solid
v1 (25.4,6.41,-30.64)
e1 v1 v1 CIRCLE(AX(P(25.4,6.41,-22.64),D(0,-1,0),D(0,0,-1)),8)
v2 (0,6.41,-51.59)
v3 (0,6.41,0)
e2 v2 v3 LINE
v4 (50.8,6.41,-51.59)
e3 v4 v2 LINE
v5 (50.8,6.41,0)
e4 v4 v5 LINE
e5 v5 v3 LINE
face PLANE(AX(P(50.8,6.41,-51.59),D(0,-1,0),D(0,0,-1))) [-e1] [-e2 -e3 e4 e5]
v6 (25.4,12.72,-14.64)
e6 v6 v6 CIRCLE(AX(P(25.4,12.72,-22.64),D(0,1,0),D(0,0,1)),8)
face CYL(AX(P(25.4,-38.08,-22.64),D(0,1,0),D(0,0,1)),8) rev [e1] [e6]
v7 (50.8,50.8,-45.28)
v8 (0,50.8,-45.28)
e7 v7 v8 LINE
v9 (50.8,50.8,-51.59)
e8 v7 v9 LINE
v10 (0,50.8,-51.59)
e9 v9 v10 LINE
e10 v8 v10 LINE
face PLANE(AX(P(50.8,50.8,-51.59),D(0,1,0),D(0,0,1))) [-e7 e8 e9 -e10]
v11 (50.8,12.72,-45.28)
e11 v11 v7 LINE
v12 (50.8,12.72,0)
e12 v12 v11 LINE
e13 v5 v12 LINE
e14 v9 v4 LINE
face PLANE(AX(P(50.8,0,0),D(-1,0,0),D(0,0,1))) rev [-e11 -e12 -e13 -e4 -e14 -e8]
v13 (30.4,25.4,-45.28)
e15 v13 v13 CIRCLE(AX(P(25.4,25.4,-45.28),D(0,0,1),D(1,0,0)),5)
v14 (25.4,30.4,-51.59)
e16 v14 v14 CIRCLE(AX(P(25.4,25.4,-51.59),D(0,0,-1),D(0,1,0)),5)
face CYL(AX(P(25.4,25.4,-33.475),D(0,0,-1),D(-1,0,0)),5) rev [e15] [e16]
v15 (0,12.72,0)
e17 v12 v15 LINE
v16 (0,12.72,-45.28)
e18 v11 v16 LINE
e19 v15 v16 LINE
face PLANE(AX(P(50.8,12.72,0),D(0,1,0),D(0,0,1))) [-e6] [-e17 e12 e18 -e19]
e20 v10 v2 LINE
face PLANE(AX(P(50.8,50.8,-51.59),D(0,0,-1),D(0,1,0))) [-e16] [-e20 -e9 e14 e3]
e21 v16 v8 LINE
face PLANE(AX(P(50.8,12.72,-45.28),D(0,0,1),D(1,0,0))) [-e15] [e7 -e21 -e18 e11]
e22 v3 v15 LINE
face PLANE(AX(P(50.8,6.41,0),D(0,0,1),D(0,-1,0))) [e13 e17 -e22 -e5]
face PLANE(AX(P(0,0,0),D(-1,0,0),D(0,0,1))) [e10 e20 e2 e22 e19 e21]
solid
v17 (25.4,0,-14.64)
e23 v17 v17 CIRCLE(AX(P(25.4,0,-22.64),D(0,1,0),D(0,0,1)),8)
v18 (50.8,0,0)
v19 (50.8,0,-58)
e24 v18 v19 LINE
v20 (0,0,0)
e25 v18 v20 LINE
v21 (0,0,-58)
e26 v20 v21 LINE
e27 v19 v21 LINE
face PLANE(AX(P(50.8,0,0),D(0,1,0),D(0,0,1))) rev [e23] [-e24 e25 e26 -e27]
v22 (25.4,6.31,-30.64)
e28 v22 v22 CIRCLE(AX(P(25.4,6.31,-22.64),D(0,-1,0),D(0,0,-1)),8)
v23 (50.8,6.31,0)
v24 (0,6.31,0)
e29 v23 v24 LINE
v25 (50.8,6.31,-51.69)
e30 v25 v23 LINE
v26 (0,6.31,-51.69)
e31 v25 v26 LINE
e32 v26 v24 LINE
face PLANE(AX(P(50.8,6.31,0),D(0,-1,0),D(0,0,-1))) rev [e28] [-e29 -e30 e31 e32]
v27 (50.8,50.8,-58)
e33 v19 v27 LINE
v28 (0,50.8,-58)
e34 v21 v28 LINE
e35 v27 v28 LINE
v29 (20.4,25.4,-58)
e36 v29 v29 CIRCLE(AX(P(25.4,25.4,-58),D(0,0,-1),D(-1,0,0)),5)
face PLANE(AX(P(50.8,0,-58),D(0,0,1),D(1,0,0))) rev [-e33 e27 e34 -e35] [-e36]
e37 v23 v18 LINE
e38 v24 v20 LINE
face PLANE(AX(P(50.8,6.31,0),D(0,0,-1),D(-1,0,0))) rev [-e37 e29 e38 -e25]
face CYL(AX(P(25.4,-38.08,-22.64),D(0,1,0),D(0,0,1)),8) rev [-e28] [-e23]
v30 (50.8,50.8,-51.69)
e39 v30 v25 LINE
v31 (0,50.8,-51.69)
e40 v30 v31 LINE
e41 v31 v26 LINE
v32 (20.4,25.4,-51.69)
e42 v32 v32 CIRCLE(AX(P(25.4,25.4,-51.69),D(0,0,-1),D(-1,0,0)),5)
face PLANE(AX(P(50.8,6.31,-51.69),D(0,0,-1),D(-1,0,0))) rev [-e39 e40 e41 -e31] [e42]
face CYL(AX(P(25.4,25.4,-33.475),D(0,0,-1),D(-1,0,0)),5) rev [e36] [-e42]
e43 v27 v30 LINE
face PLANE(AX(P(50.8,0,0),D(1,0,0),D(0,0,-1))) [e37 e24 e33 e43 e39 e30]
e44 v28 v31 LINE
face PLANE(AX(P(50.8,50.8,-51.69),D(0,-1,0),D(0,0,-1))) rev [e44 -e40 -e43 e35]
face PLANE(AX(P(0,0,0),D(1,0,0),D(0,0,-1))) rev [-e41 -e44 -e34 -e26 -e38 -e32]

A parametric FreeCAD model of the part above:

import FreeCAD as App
import Part
import Sketcher
from FreeCAD import Vector
Q = App.Units.Quantity

doc = App.newDocument("Part")
body = doc.addObject("PartDesign::Body", "Body")

sketch1 = body.newObject("Sketcher::SketchObject", "Sketch")
sketch1.AttachmentSupport = (doc.getObject("YZ_Plane"), [""])
sketch1.MapMode = "FlatFace"
sketch1.addGeometry(Part.LineSegment(Vector(0, 0, 0), Vector(0, -58, 0)), False)
sketch1.addGeometry(Part.LineSegment(Vector(0, -58, 0), Vector(51, -58, 0)), False)
sketch1.addGeometry(Part.LineSegment(Vector(51, -58, 0), Vector(51, -52, 0)), False)
sketch1.addGeometry(Part.LineSegment(Vector(51, -52, 0), Vector(6, -52, 0)), False)
sketch1.addGeometry(Part.LineSegment(Vector(6, -52, 0), Vector(6, 0, 0)), False)
sketch1.addGeometry(Part.LineSegment(Vector(6, 0, 0), Vector(0, 0, 0)), False)
sketch1.addConstraint(Sketcher.Constraint("Coincident", 0, 2, 1, 1))
sketch1.addConstraint(Sketcher.Constraint("Coincident", 1, 2, 2, 1))
sketch1.addConstraint(Sketcher.Constraint("Coincident", 2, 2, 3, 1))
sketch1.addConstraint(Sketcher.Constraint("Coincident", 3, 2, 4, 1))
sketch1.addConstraint(Sketcher.Constraint("Coincident", 4, 2, 5, 1))
sketch1.addConstraint(Sketcher.Constraint("Coincident", 5, 2, 0, 1))
sketch1.addConstraint(Sketcher.Constraint("Vertical", 0))
sketch1.addConstraint(Sketcher.Constraint("Horizontal", 1))
sketch1.addConstraint(Sketcher.Constraint("Vertical", 2))
sketch1.addConstraint(Sketcher.Constraint("Horizontal", 3))
sketch1.addConstraint(Sketcher.Constraint("Vertical", 4))
sketch1.addConstraint(Sketcher.Constraint("Horizontal", 5))
sketch1.addConstraint(Sketcher.Constraint("Coincident", 5, 2, -1, 1))
sketch1.addConstraint(Sketcher.Constraint("Equal", 5, 2))
sketch1.addConstraint(Sketcher.Constraint("DistanceY", 0, 2, 0, 1, Q("58 mm")))
sketch1.addConstraint(Sketcher.Constraint("DistanceX", 1, 1, 1, 2, Q("50.8 mm")))
sketch1.addConstraint(Sketcher.Constraint("DistanceX", 3, 2, 3, 1, Q("44.49 mm")))
pad1 = body.newObject("PartDesign::Pad", "Pad")
pad1.Profile = sketch1
pad1.Length = 50.8
body2 = doc.addObject("PartDesign::Body", "Body001")

sketch2 = body2.newObject("Sketcher::SketchObject", "Sketch001")
sketch2.AttachmentSupport = (doc.getObject("YZ_Plane001"), [""])
sketch2.MapMode = "FlatFace"
sketch2.addGeometry(Part.LineSegment(Vector(51, -52, 0), Vector(6, -52, 0)), False)
sketch2.addGeometry(Part.LineSegment(Vector(6, -52, 0), Vector(6, 0, 0)), False)
sketch2.addGeometry(Part.LineSegment(Vector(6, 0, 0), Vector(13, 0, 0)), False)
sketch2.addGeometry(Part.LineSegment(Vector(13, 0, 0), Vector(13, -45, 0)), False)
sketch2.addGeometry(Part.LineSegment(Vector(13, -45, 0), Vector(51, -45, 0)), False)
sketch2.addGeometry(Part.LineSegment(Vector(51, -45, 0), Vector(51, -52, 0)), False)
sketch2.addConstraint(Sketcher.Constraint("Coincident", 0, 2, 1, 1))
sketch2.addConstraint(Sketcher.Constraint("Coincident", 1, 2, 2, 1))
sketch2.addConstraint(Sketcher.Constraint("Coincident", 2, 2, 3, 1))
sketch2.addConstraint(Sketcher.Constraint("Coincident", 3, 2, 4, 1))
sketch2.addConstraint(Sketcher.Constraint("Coincident", 4, 2, 5, 1))
sketch2.addConstraint(Sketcher.Constraint("Coincident", 5, 2, 0, 1))
sketch2.addConstraint(Sketcher.Constraint("Horizontal", 0))
sketch2.addConstraint(Sketcher.Constraint("Vertical", 1))
sketch2.addConstraint(Sketcher.Constraint("Horizontal", 2))
sketch2.addConstraint(Sketcher.Constraint("Vertical", 3))
sketch2.addConstraint(Sketcher.Constraint("Horizontal", 4))
sketch2.addConstraint(Sketcher.Constraint("Vertical", 5))
sketch2.addConstraint(Sketcher.Constraint("PointOnObject", 1, 2, -1))
sketch2.addConstraint(Sketcher.Constraint("Equal", 2, 5))
sketch2.addConstraint(Sketcher.Constraint("DistanceX", 0, 2, 0, 1, Q("44.39 mm")))
sketch2.addConstraint(Sketcher.Constraint("DistanceX", 2, 1, 2, 2, Q("6.31 mm")))
sketch2.addConstraint(Sketcher.Constraint("DistanceY", 1, 1, 1, 2, Q("51.59 mm")))
sketch2.addConstraint(Sketcher.Constraint("DistanceX", -1, 1, 4, 2, Q("50.8 mm")))
pad2 = body2.newObject("PartDesign::Pad", "Pad001")
pad2.Profile = sketch2
pad2.Length = 50.8
body3 = doc.addObject("PartDesign::Body", "Body002")

sketch3 = body3.newObject("Sketcher::SketchObject", "Sketch002")
sketch3.AttachmentSupport = (doc.getObject("XZ_Plane002"), [""])
sketch3.MapMode = "FlatFace"
sketch3.AttachmentOffset = App.Placement(Vector(0, 0, -12.72), App.Rotation())
sketch3.addGeometry(Part.Circle(Vector(25, -23, 0), Vector(0, 0, 1), 8), False)
sketch3.addConstraint(Sketcher.Constraint("Diameter", 0, Q("16 mm")))
sketch3.addConstraint(Sketcher.Constraint("DistanceX", -1, 1, 0, 3, Q("25.4 mm")))
sketch3.addConstraint(Sketcher.Constraint("DistanceY", 0, 3, -1, 1, Q("22.64 mm")))
pad3 = body3.newObject("PartDesign::Pad", "Pad002")
pad3.Profile = sketch3
pad3.Length = 50.8
doc.recompute()

body4 = doc.addObject("PartDesign::Body", "Body003")
body4.BaseFeature = body3
boolean = body.newObject("PartDesign::Boolean", "Boolean")
boolean.Type = "Cut"
boolean.addObjects([body4])
doc.recompute()

boolean2 = body2.newObject("PartDesign::Boolean", "Boolean001")
boolean2.Type = "Cut"
boolean2.addObjects([body3])
body5 = doc.addObject("PartDesign::Body", "Body004")

sketch4 = body5.newObject("Sketcher::SketchObject", "Sketch003")
sketch4.AttachmentSupport = (doc.getObject("XY_Plane004"), [""])
sketch4.MapMode = "FlatFace"
sketch4.AttachmentOffset = App.Placement(Vector(0, 0, -58), App.Rotation())
sketch4.addGeometry(Part.Circle(Vector(25, 25, 0), Vector(0, 0, 1), 5), False)
sketch4.addConstraint(Sketcher.Constraint("Diameter", 0, Q("10 mm")))
sketch4.addConstraint(Sketcher.Constraint("DistanceX", -1, 1, 0, 3, Q("25.4 mm")))
sketch4.addConstraint(Sketcher.Constraint("DistanceY", -1, 1, 0, 3, Q("25.4 mm")))
pad4 = body5.newObject("PartDesign::Pad", "Pad003")
pad4.Profile = sketch4
pad4.Length = 24.525
doc.recompute()

body6 = doc.addObject("PartDesign::Body", "Body005")
body6.BaseFeature = body5
boolean3 = body.newObject("PartDesign::Boolean", "Boolean002")
boolean3.Type = "Cut"
boolean3.addObjects([body6])
doc.recompute()

boolean4 = body2.newObject("PartDesign::Boolean", "Boolean003")
boolean4.Type = "Cut"
boolean4.addObjects([body5])

doc.recompute()
